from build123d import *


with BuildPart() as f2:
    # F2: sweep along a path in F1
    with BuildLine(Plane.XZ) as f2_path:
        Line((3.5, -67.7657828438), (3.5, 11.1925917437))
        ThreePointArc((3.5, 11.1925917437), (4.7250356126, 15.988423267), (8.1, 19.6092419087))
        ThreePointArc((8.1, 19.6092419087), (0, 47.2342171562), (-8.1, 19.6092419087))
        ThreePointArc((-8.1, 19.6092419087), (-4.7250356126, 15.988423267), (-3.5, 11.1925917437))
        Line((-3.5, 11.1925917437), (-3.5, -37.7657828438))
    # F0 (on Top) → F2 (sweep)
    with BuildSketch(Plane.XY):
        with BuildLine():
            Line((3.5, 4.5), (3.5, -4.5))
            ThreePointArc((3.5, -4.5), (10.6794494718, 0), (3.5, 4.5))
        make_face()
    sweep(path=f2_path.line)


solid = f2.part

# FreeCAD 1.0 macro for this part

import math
import FreeCAD as App
import Part
import Sketcher

doc = App.newDocument("Part")
body = doc.addObject("PartDesign::Body", "Body")

# Sketch on XY plane
sketch1 = body.newObject("Sketcher::SketchObject", "Sketch")
sketch1.AttachmentSupport = (doc.getObject("XY_Plane"), [""])
sketch1.MapMode = "FlatFace"
sketch1.addGeometry([
    Part.LineSegment(App.Vector(4, 4, 0), App.Vector(4, -4, 0)),
    Part.ArcOfCircle(Part.Circle(App.Vector(6, 0, 0), App.Vector(0, 0, 1), 5), math.radians(-116), math.radians(116)),
], False)
sketch1.addConstraint([
    Sketcher.Constraint("Coincident", 0, 1, 1, 2),
    Sketcher.Constraint("Coincident", 1, 1, 0, 2),
    Sketcher.Constraint("Vertical", 0),
    Sketcher.Constraint("PointOnObject", 1, 3, -1),
    Sketcher.Constraint("Radius", 1, 5.0),
    Sketcher.Constraint("DistanceY", 0, 2, 0, 1, 9.0),
    Sketcher.Constraint("DistanceX", -1, 1, 0, 1, 3.5),
])

# Sketch on XZ plane
sketch2 = body.newObject("Sketcher::SketchObject", "Sketch001")
sketch2.AttachmentSupport = (doc.getObject("XZ_Plane"), [""])
sketch2.MapMode = "FlatFace"
sketch2.addGeometry([
    Part.LineSegment(App.Vector(4, -68, 0), App.Vector(4, 11, 0)),  # 0
    Part.ArcOfCircle(Part.Circle(App.Vector(14, 11, 0), App.Vector(0, 0, 1), 10), math.radians(123), math.radians(180)),  # 1
    Part.ArcOfCircle(Part.Circle(App.Vector(0, 32, 0), App.Vector(0, 0, 1), 15), math.radians(-57), math.radians(237)),  # 2
    Part.ArcOfCircle(Part.Circle(App.Vector(-14, 11, 0), App.Vector(0, 0, 1), 10), math.radians(0), math.radians(57)),  # 3
    Part.LineSegment(App.Vector(-4, 11, 0), App.Vector(-4, -38, 0)),  # 4
], False)
sketch2.addConstraint([
    Sketcher.Constraint("Tangent", 0, 2, 1, 2),
    Sketcher.Constraint("Tangent", 1, 1, 2, 1),
    Sketcher.Constraint("Tangent", 2, 2, 3, 2),
    Sketcher.Constraint("Tangent", 3, 1, 4, 1),
    Sketcher.Constraint("Vertical", 0),
    Sketcher.Constraint("Vertical", 4),
    Sketcher.Constraint("Equal", 1, 3),
    Sketcher.Constraint("Symmetric", 1, 3, 3, 3, -2),
    Sketcher.Constraint("Radius", 1, 10.0),
    Sketcher.Constraint("Radius", 2, 15.0),
    Sketcher.Constraint("DistanceX", 3, 3, 1, 3, 27.0),
    Sketcher.Constraint("DistanceY", 0, 1, 2, 3, 100.0),
    Sketcher.Constraint("DistanceY", 0, 1, 4, 2, 30.0),
    Sketcher.Constraint("DistanceY", -1, 1, 1, 3, 11.192592),
])
doc.recompute()

additivepipe = body.newObject("PartDesign::AdditivePipe", "AdditivePipe")
additivepipe.Profile = sketch1
additivepipe.Spine = (sketch2, ["Edge1", "Edge2", "Edge3", "Edge4", "Edge5"])

doc.recompute()
